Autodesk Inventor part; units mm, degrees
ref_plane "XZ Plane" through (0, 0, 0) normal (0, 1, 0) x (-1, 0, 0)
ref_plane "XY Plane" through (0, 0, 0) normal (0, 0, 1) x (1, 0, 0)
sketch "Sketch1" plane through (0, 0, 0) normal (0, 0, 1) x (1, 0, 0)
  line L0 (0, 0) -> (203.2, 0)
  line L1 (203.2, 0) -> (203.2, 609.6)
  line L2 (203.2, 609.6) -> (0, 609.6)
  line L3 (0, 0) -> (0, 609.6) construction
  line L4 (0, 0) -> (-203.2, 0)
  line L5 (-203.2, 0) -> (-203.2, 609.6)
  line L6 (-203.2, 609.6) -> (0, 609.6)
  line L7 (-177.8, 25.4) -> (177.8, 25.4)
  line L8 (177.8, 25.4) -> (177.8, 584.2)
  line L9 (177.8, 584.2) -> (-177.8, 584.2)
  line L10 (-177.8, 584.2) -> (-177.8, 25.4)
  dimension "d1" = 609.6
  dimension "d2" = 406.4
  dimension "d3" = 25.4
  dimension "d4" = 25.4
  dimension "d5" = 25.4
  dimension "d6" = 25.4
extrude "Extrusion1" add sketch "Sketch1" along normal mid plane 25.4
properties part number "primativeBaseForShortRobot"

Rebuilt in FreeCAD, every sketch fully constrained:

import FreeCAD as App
import Part
import Sketcher
from FreeCAD import Vector
Q = App.Units.Quantity


def add_polygon(sketch, points):
    """Adds a closed chain of lines whose ends are joined by coincident constraints."""
    first, n = sketch.GeometryCount, len(points)
    for a, b in zip(points, points[1:] + points[:1]):
        sketch.addGeometry(Part.LineSegment(App.Vector(*a, 0), App.Vector(*b, 0)), False)
    for i in range(n):
        sketch.addConstraint(Sketcher.Constraint("Coincident", first + i, 2, first + (i + 1) % n, 1))

doc = App.newDocument("Part")
body = doc.addObject("PartDesign::Body", "Body")

# Sketch on XY plane
sketch1 = body.newObject("Sketcher::SketchObject", "Sketch")
sketch1.AttachmentSupport = (doc.getObject("XY_Plane"), [""])
sketch1.MapMode = "FlatFace"
add_polygon(sketch1, [(-203, 0), (203, 0), (203, 610), (-203, 610)])  # lines 0-3
add_polygon(sketch1, [(178, 25), (-178, 25), (-178, 584), (178, 584)])  # lines 4-7
sketch1.addConstraint([
    Sketcher.Constraint("Horizontal", 0),
    Sketcher.Constraint("Vertical", 1),
    Sketcher.Constraint("Horizontal", 2),
    Sketcher.Constraint("Vertical", 3),
    Sketcher.Constraint("Horizontal", 4),
    Sketcher.Constraint("Vertical", 5),
    Sketcher.Constraint("Horizontal", 6),
    Sketcher.Constraint("Vertical", 7),
    Sketcher.Constraint("Symmetric", 0, 2, 3, 2, -1, 1),
    Sketcher.Constraint("DistanceX", 0, 1, 0, 2, Q("16 in")),
    Sketcher.Constraint("DistanceY", 1, 1, 1, 2, Q("24 in")),
    Sketcher.Constraint("DistanceY", -1, 1, 4, 2, Q("1 in")),
    Sketcher.Constraint("DistanceX", 3, 2, 4, 2, Q("1 in")),
    Sketcher.Constraint("DistanceY", 5, 2, 2, 2, Q("1 in")),
    Sketcher.Constraint("DistanceX", 6, 2, 1, 2, Q("1 in")),
])
pad1 = body.newObject("PartDesign::Pad", "Pad")
pad1.Profile = sketch1
pad1.Length = Q("1 in")
pad1.Midplane = True

doc.recompute()
